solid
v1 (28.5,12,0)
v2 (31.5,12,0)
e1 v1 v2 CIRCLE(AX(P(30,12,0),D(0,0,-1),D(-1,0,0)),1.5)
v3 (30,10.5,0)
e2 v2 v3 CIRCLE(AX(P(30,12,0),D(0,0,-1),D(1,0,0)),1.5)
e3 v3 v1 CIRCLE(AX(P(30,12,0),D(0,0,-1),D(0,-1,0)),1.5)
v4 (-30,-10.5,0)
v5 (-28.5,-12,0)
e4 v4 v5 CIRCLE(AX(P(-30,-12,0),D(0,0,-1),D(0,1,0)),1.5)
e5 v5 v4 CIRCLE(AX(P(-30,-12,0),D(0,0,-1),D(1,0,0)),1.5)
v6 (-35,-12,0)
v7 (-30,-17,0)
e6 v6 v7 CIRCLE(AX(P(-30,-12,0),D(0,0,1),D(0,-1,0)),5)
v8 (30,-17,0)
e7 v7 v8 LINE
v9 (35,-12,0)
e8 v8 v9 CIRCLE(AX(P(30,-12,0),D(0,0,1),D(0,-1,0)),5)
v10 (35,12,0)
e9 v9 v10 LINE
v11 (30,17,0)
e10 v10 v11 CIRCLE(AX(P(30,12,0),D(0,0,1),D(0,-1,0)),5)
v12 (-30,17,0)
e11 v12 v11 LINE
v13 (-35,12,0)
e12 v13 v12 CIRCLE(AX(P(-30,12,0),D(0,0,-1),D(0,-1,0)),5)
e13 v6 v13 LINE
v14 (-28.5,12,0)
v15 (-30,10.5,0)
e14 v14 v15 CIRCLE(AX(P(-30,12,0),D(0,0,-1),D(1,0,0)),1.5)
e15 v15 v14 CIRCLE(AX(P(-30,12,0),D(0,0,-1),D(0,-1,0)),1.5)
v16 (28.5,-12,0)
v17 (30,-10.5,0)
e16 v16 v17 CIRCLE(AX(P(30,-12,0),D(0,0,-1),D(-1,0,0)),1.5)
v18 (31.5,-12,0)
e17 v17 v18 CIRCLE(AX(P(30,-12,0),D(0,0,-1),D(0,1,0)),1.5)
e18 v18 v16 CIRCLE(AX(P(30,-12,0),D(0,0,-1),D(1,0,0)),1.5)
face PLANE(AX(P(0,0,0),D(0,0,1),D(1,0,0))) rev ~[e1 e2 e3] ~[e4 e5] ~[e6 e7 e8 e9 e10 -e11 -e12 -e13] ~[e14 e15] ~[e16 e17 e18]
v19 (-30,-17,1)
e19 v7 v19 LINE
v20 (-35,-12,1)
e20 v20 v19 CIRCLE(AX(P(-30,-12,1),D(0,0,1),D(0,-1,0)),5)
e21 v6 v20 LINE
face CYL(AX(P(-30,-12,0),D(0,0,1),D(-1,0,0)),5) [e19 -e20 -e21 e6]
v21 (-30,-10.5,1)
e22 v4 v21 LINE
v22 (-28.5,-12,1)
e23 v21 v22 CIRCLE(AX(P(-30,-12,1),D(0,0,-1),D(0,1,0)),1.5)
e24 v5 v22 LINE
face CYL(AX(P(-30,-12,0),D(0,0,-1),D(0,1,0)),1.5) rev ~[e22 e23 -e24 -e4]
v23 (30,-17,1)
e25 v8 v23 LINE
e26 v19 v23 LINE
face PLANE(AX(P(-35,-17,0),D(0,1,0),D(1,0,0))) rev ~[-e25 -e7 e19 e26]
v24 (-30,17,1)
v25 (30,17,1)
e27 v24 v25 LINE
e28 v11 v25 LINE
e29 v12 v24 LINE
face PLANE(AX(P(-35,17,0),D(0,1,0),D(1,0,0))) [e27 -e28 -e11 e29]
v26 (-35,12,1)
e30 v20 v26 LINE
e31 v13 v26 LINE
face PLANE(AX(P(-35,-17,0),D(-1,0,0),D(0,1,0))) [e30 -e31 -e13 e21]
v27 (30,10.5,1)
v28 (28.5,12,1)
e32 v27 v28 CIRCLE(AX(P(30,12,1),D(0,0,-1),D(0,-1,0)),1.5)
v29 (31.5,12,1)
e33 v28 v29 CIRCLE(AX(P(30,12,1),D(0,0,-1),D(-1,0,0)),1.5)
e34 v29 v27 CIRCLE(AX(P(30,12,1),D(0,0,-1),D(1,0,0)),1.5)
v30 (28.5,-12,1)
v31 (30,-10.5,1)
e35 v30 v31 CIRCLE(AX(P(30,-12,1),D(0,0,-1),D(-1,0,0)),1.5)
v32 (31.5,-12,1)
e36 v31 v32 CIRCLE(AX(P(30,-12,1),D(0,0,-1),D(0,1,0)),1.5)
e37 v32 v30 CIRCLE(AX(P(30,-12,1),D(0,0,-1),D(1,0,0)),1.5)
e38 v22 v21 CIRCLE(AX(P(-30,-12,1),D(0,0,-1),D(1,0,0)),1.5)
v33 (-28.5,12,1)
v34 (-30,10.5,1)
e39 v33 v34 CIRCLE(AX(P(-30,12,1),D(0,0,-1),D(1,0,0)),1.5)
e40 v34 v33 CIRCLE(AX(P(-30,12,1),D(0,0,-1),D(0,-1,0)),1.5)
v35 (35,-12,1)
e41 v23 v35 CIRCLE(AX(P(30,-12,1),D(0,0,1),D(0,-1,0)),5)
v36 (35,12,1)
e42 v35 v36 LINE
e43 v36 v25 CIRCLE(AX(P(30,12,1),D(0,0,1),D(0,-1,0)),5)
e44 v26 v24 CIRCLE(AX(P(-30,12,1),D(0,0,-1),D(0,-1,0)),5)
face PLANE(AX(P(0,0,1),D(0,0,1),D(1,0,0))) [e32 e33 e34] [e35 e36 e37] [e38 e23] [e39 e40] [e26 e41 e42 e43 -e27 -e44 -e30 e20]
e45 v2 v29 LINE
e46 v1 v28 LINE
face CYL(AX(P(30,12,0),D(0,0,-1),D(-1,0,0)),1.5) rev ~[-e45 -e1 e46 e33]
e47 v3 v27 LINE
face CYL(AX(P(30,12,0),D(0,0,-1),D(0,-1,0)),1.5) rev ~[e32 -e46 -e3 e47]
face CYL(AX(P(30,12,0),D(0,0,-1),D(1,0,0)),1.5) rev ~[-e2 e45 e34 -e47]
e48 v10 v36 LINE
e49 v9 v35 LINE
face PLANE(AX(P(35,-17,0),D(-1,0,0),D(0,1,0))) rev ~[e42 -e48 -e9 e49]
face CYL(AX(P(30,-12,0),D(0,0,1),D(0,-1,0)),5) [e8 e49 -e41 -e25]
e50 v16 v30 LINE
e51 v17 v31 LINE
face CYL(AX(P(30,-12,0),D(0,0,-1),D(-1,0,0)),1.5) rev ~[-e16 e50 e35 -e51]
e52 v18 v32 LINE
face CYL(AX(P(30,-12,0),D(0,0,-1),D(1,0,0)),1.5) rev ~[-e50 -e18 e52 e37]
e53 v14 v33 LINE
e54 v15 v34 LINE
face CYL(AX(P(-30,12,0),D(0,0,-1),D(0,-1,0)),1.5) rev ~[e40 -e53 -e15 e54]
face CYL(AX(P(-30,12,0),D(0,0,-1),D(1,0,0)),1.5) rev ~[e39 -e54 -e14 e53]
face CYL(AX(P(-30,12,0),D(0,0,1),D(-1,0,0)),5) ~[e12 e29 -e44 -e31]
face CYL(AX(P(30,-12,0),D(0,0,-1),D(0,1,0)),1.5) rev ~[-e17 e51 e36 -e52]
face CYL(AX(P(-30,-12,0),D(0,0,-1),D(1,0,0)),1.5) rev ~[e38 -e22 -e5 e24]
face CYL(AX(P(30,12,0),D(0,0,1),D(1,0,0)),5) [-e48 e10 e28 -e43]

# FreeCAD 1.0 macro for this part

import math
import FreeCAD as App
import Part
import Sketcher

V = App.Vector
Q = App.Units.Quantity


def edges_at(feature, points):
    """Names of the edges that pass closest to the given points."""
    edges = feature.Shape.Edges
    near = lambda p: min(range(len(edges)), key=lambda i: edges[i].distToShape(Part.Vertex(*p))[0])
    return sorted({f"Edge{near(p) + 1}" for p in points})


def add_polygon(sketch, points):
    """Adds a closed chain of lines whose ends are joined by coincident constraints."""
    first, n = sketch.GeometryCount, len(points)
    for a, b in zip(points, points[1:] + points[:1]):
        sketch.addGeometry(Part.LineSegment(App.Vector(*a, 0), App.Vector(*b, 0)), False)
    for i in range(n):
        sketch.addConstraint(Sketcher.Constraint("Coincident", first + i, 2, first + (i + 1) % n, 1))

doc = App.newDocument("Part")
body = doc.addObject("PartDesign::Body", "Body")

# Sketch on XY plane
sketch1 = body.newObject("Sketcher::SketchObject", "Sketch")
sketch1.AttachmentSupport = (doc.getObject("XY_Plane"), [""])
sketch1.MapMode = "FlatFace"
add_polygon(sketch1, [(-35, 17), (-35, -17), (35, -17), (35, 17)])  # lines 0-3
sketch1.addGeometry(Part.ArcOfCircle(Part.Circle(V(-30, -12, 0), V(0, 0, 1), 1.5), math.radians(90), math.radians(360)), False)  # 4
sketch1.addGeometry(Part.ArcOfCircle(Part.Circle(V(-30, -12, 0), V(0, 0, 1), 1.5), math.radians(0), math.radians(90)), False)  # 5
sketch1.addGeometry(Part.ArcOfCircle(Part.Circle(V(30, -12, 0), V(0, 0, 1), 1.5), math.radians(180), math.radians(360)), False)  # 6
sketch1.addGeometry(Part.ArcOfCircle(Part.Circle(V(30, -12, 0), V(0, 0, 1), 1.5), math.radians(90), math.radians(180)), False)  # 7
sketch1.addGeometry(Part.ArcOfCircle(Part.Circle(V(30, -12, 0), V(0, 0, 1), 1.5), math.radians(0), math.radians(90)), False)  # 8
sketch1.addGeometry(Part.ArcOfCircle(Part.Circle(V(30, 12, 0), V(0, 0, 1), 1.5), math.radians(-90), math.radians(0)), False)  # 9
sketch1.addGeometry(Part.ArcOfCircle(Part.Circle(V(30, 12, 0), V(0, 0, 1), 1.5), math.radians(180), math.radians(270)), False)  # 10
sketch1.addGeometry(Part.ArcOfCircle(Part.Circle(V(30, 12, 0), V(0, 0, 1), 1.5), math.radians(0), math.radians(180)), False)  # 11
sketch1.addGeometry(Part.ArcOfCircle(Part.Circle(V(-30, 12, 0), V(0, 0, 1), 1.5), math.radians(0), math.radians(270)), False)  # 12
sketch1.addGeometry(Part.ArcOfCircle(Part.Circle(V(-30, 12, 0), V(0, 0, 1), 1.5), math.radians(-90), math.radians(0)), False)  # 13
sketch1.addConstraint([
    Sketcher.Constraint("Tangent", 4, 1, 5, 2),
    Sketcher.Constraint("Coincident", 5, 1, 4, 2),
    Sketcher.Constraint("Tangent", 6, 1, 7, 2),
    Sketcher.Constraint("Tangent", 7, 1, 8, 2),
    Sketcher.Constraint("Tangent", 8, 1, 6, 2),
    Sketcher.Constraint("Tangent", 9, 1, 10, 2),
    Sketcher.Constraint("Tangent", 10, 1, 11, 2),
    Sketcher.Constraint("Tangent", 11, 1, 9, 2),
    Sketcher.Constraint("Tangent", 12, 1, 13, 2),
    Sketcher.Constraint("Coincident", 13, 1, 12, 2),
    Sketcher.Constraint("Vertical", 0),
    Sketcher.Constraint("Horizontal", 1),
    Sketcher.Constraint("Vertical", 2),
    Sketcher.Constraint("Horizontal", 3),
    Sketcher.Constraint("Equal", 5, 6),
    Sketcher.Constraint("Equal", 8, 9),
    Sketcher.Constraint("Equal", 11, 12),
    Sketcher.Constraint("Symmetric", 4, 3, 9, 3, -1, 1),
    Sketcher.Constraint("Symmetric", 6, 3, 12, 3, -1, 1),
    Sketcher.Constraint("Symmetric", 0, 2, 2, 2, -1, 1),
    Sketcher.Constraint("Symmetric", 4, 3, 6, 3, -2),
    Sketcher.Constraint("Horizontal", 8, 3, 5, 1),
    Sketcher.Constraint("Horizontal", 5, 1, 6, 1),
    Sketcher.Constraint("Horizontal", 6, 1, 8, 1),
    Sketcher.Constraint("Horizontal", 13, 3, 10, 1),
    Sketcher.Constraint("Horizontal", 10, 1, 11, 1),
    Sketcher.Constraint("Horizontal", 11, 1, 12, 1),
    Sketcher.Constraint("Vertical", 13, 3, 4, 1),
    Sketcher.Constraint("Vertical", 11, 3, 7, 1),
    Sketcher.Constraint("Vertical", 7, 1, 9, 1),
    Sketcher.Constraint("Vertical", 4, 1, 13, 1),
    Sketcher.Constraint("Radius", 4, Q("1.5 mm")),
    Sketcher.Constraint("DistanceX", 1, 1, 1, 2, Q("70 mm")),
    Sketcher.Constraint("DistanceY", 0, 2, 0, 1, Q("34 mm")),
    Sketcher.Constraint("DistanceX", 4, 3, -1, 1, Q("30 mm")),
    Sketcher.Constraint("DistanceY", 4, 3, -1, 1, Q("12 mm")),
])
pad1 = body.newObject("PartDesign::Pad", "Pad")
pad1.Profile = sketch1
pad1.Length = 1
doc.recompute()

fillet = body.newObject("PartDesign::Fillet", "Fillet")
fillet.Base = (pad1, edges_at(pad1, [
    (-35, -17, 0.5),
    (-35, 17, 0.5),
    (35, 17, 0.5),
    (35, -17, 0.5),
]))
fillet.Radius = 5

doc.recompute()
